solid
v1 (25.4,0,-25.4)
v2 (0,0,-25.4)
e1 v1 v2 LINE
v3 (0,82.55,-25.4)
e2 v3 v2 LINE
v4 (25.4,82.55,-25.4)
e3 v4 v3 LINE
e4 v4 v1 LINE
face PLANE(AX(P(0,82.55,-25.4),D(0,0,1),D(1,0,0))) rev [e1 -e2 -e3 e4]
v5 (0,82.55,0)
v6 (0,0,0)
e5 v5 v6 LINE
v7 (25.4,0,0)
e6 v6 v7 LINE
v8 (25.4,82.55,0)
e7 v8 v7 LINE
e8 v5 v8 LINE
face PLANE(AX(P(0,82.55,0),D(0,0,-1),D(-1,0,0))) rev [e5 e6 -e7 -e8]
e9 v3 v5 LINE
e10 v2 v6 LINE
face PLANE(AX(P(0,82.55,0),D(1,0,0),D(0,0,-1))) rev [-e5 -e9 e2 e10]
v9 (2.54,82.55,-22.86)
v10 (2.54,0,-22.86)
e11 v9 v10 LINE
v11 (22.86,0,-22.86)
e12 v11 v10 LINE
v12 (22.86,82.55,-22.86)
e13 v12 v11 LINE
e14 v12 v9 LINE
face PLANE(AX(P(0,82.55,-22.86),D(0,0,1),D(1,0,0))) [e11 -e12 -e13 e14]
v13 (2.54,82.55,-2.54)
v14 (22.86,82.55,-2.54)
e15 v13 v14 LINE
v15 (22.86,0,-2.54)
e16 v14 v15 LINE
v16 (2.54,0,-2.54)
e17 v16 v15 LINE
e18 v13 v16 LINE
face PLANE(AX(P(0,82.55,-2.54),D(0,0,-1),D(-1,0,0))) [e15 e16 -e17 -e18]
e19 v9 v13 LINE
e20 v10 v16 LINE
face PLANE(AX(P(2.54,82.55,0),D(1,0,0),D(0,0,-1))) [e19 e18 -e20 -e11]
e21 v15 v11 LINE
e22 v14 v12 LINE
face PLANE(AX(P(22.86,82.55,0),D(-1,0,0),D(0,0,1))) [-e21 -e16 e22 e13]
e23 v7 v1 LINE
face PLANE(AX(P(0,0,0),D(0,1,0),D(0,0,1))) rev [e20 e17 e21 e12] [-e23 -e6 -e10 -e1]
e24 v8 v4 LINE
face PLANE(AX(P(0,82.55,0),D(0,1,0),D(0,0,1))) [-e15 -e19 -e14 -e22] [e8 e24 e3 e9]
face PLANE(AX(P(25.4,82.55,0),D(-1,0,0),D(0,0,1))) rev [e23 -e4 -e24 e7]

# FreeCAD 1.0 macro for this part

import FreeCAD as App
import Part
import Sketcher

V = App.Vector
Q = App.Units.Quantity

doc = App.newDocument("Part")
params = doc.addObject("Spreadsheet::Sheet", "Params")
for row, (alias, value) in enumerate([
    ("sketch1_width", "1 in"),
    ("sketch1_width2", "0.8 in"),
    ("pad1_length", "3.25 in"),
], start=1):
    params.set(f"A{row}", alias)
    params.set(f"B{row}", "=" + value)
    params.setAlias(f"B{row}", alias)

body = doc.addObject("PartDesign::Body", "Body")

# Sketch on XZ plane
sketch1 = doc.addObject("Sketcher::SketchObject", "Sketch")
body.addObject(sketch1)
sketch1.AttachmentSupport = (doc.XZ_Plane, [""])
sketch1.MapMode = "FlatFace"
sketch1.addGeometry(Part.LineSegment(V(0, -25, 0), V(0, 0, 0)), False)
sketch1.addGeometry(Part.LineSegment(V(0, 0, 0), V(25, 0, 0)), False)
sketch1.addGeometry(Part.LineSegment(V(25, 0, 0), V(25, -25, 0)), False)
sketch1.addGeometry(Part.LineSegment(V(25, -25, 0), V(0, -25, 0)), False)
sketch1.addGeometry(Part.LineSegment(V(23, -3, 0), V(3, -3, 0)), False)
sketch1.addGeometry(Part.LineSegment(V(3, -3, 0), V(3, -23, 0)), False)
sketch1.addGeometry(Part.LineSegment(V(3, -23, 0), V(23, -23, 0)), False)
sketch1.addGeometry(Part.LineSegment(V(23, -23, 0), V(23, -3, 0)), False)
sketch1.addConstraint(Sketcher.Constraint("Coincident", 0, 2, 1, 1))
sketch1.addConstraint(Sketcher.Constraint("Coincident", 1, 2, 2, 1))
sketch1.addConstraint(Sketcher.Constraint("Coincident", 2, 2, 3, 1))
sketch1.addConstraint(Sketcher.Constraint("Coincident", 3, 2, 0, 1))
sketch1.addConstraint(Sketcher.Constraint("Coincident", 4, 2, 5, 1))
sketch1.addConstraint(Sketcher.Constraint("Coincident", 5, 2, 6, 1))
sketch1.addConstraint(Sketcher.Constraint("Coincident", 6, 2, 7, 1))
sketch1.addConstraint(Sketcher.Constraint("Coincident", 7, 2, 4, 1))
sketch1.addConstraint(Sketcher.Constraint("Vertical", 0))
sketch1.addConstraint(Sketcher.Constraint("Horizontal", 1))
sketch1.addConstraint(Sketcher.Constraint("Vertical", 2))
sketch1.addConstraint(Sketcher.Constraint("Horizontal", 3))
sketch1.addConstraint(Sketcher.Constraint("Horizontal", 4))
sketch1.addConstraint(Sketcher.Constraint("Vertical", 5))
sketch1.addConstraint(Sketcher.Constraint("Horizontal", 6))
sketch1.addConstraint(Sketcher.Constraint("Vertical", 7))
sketch1.addConstraint(Sketcher.Constraint("Coincident", 0, 2, -1, 1))
sketch1.addConstraint(Sketcher.Constraint("Equal", 3, 0))
sketch1.addConstraint(Sketcher.Constraint("Equal", 6, 5))
sketch1.addConstraint(Sketcher.Constraint("DistanceX", 1, 1, 1, 2, Q("1 in")))
sketch1.addConstraint(Sketcher.Constraint("DistanceX", 4, 2, 4, 1, Q("0.8 in")))
sketch1.addConstraint(Sketcher.Constraint("DistanceX", -1, 1, 4, 2, Q("0.1 in")))
sketch1.addConstraint(Sketcher.Constraint("DistanceY", 4, 2, -1, 1, Q("0.1 in")))
sketch1.setExpression("Constraints[19]", "Params.sketch1_width")
sketch1.setExpression("Constraints[20]", "Params.sketch1_width2")
pad1 = doc.addObject("PartDesign::Pad", "Pad")
body.addObject(pad1)
pad1.Profile = sketch1
pad1.setExpression("Length", "Params.pad1_length")
pad1.Reversed = True

doc.recompute()
